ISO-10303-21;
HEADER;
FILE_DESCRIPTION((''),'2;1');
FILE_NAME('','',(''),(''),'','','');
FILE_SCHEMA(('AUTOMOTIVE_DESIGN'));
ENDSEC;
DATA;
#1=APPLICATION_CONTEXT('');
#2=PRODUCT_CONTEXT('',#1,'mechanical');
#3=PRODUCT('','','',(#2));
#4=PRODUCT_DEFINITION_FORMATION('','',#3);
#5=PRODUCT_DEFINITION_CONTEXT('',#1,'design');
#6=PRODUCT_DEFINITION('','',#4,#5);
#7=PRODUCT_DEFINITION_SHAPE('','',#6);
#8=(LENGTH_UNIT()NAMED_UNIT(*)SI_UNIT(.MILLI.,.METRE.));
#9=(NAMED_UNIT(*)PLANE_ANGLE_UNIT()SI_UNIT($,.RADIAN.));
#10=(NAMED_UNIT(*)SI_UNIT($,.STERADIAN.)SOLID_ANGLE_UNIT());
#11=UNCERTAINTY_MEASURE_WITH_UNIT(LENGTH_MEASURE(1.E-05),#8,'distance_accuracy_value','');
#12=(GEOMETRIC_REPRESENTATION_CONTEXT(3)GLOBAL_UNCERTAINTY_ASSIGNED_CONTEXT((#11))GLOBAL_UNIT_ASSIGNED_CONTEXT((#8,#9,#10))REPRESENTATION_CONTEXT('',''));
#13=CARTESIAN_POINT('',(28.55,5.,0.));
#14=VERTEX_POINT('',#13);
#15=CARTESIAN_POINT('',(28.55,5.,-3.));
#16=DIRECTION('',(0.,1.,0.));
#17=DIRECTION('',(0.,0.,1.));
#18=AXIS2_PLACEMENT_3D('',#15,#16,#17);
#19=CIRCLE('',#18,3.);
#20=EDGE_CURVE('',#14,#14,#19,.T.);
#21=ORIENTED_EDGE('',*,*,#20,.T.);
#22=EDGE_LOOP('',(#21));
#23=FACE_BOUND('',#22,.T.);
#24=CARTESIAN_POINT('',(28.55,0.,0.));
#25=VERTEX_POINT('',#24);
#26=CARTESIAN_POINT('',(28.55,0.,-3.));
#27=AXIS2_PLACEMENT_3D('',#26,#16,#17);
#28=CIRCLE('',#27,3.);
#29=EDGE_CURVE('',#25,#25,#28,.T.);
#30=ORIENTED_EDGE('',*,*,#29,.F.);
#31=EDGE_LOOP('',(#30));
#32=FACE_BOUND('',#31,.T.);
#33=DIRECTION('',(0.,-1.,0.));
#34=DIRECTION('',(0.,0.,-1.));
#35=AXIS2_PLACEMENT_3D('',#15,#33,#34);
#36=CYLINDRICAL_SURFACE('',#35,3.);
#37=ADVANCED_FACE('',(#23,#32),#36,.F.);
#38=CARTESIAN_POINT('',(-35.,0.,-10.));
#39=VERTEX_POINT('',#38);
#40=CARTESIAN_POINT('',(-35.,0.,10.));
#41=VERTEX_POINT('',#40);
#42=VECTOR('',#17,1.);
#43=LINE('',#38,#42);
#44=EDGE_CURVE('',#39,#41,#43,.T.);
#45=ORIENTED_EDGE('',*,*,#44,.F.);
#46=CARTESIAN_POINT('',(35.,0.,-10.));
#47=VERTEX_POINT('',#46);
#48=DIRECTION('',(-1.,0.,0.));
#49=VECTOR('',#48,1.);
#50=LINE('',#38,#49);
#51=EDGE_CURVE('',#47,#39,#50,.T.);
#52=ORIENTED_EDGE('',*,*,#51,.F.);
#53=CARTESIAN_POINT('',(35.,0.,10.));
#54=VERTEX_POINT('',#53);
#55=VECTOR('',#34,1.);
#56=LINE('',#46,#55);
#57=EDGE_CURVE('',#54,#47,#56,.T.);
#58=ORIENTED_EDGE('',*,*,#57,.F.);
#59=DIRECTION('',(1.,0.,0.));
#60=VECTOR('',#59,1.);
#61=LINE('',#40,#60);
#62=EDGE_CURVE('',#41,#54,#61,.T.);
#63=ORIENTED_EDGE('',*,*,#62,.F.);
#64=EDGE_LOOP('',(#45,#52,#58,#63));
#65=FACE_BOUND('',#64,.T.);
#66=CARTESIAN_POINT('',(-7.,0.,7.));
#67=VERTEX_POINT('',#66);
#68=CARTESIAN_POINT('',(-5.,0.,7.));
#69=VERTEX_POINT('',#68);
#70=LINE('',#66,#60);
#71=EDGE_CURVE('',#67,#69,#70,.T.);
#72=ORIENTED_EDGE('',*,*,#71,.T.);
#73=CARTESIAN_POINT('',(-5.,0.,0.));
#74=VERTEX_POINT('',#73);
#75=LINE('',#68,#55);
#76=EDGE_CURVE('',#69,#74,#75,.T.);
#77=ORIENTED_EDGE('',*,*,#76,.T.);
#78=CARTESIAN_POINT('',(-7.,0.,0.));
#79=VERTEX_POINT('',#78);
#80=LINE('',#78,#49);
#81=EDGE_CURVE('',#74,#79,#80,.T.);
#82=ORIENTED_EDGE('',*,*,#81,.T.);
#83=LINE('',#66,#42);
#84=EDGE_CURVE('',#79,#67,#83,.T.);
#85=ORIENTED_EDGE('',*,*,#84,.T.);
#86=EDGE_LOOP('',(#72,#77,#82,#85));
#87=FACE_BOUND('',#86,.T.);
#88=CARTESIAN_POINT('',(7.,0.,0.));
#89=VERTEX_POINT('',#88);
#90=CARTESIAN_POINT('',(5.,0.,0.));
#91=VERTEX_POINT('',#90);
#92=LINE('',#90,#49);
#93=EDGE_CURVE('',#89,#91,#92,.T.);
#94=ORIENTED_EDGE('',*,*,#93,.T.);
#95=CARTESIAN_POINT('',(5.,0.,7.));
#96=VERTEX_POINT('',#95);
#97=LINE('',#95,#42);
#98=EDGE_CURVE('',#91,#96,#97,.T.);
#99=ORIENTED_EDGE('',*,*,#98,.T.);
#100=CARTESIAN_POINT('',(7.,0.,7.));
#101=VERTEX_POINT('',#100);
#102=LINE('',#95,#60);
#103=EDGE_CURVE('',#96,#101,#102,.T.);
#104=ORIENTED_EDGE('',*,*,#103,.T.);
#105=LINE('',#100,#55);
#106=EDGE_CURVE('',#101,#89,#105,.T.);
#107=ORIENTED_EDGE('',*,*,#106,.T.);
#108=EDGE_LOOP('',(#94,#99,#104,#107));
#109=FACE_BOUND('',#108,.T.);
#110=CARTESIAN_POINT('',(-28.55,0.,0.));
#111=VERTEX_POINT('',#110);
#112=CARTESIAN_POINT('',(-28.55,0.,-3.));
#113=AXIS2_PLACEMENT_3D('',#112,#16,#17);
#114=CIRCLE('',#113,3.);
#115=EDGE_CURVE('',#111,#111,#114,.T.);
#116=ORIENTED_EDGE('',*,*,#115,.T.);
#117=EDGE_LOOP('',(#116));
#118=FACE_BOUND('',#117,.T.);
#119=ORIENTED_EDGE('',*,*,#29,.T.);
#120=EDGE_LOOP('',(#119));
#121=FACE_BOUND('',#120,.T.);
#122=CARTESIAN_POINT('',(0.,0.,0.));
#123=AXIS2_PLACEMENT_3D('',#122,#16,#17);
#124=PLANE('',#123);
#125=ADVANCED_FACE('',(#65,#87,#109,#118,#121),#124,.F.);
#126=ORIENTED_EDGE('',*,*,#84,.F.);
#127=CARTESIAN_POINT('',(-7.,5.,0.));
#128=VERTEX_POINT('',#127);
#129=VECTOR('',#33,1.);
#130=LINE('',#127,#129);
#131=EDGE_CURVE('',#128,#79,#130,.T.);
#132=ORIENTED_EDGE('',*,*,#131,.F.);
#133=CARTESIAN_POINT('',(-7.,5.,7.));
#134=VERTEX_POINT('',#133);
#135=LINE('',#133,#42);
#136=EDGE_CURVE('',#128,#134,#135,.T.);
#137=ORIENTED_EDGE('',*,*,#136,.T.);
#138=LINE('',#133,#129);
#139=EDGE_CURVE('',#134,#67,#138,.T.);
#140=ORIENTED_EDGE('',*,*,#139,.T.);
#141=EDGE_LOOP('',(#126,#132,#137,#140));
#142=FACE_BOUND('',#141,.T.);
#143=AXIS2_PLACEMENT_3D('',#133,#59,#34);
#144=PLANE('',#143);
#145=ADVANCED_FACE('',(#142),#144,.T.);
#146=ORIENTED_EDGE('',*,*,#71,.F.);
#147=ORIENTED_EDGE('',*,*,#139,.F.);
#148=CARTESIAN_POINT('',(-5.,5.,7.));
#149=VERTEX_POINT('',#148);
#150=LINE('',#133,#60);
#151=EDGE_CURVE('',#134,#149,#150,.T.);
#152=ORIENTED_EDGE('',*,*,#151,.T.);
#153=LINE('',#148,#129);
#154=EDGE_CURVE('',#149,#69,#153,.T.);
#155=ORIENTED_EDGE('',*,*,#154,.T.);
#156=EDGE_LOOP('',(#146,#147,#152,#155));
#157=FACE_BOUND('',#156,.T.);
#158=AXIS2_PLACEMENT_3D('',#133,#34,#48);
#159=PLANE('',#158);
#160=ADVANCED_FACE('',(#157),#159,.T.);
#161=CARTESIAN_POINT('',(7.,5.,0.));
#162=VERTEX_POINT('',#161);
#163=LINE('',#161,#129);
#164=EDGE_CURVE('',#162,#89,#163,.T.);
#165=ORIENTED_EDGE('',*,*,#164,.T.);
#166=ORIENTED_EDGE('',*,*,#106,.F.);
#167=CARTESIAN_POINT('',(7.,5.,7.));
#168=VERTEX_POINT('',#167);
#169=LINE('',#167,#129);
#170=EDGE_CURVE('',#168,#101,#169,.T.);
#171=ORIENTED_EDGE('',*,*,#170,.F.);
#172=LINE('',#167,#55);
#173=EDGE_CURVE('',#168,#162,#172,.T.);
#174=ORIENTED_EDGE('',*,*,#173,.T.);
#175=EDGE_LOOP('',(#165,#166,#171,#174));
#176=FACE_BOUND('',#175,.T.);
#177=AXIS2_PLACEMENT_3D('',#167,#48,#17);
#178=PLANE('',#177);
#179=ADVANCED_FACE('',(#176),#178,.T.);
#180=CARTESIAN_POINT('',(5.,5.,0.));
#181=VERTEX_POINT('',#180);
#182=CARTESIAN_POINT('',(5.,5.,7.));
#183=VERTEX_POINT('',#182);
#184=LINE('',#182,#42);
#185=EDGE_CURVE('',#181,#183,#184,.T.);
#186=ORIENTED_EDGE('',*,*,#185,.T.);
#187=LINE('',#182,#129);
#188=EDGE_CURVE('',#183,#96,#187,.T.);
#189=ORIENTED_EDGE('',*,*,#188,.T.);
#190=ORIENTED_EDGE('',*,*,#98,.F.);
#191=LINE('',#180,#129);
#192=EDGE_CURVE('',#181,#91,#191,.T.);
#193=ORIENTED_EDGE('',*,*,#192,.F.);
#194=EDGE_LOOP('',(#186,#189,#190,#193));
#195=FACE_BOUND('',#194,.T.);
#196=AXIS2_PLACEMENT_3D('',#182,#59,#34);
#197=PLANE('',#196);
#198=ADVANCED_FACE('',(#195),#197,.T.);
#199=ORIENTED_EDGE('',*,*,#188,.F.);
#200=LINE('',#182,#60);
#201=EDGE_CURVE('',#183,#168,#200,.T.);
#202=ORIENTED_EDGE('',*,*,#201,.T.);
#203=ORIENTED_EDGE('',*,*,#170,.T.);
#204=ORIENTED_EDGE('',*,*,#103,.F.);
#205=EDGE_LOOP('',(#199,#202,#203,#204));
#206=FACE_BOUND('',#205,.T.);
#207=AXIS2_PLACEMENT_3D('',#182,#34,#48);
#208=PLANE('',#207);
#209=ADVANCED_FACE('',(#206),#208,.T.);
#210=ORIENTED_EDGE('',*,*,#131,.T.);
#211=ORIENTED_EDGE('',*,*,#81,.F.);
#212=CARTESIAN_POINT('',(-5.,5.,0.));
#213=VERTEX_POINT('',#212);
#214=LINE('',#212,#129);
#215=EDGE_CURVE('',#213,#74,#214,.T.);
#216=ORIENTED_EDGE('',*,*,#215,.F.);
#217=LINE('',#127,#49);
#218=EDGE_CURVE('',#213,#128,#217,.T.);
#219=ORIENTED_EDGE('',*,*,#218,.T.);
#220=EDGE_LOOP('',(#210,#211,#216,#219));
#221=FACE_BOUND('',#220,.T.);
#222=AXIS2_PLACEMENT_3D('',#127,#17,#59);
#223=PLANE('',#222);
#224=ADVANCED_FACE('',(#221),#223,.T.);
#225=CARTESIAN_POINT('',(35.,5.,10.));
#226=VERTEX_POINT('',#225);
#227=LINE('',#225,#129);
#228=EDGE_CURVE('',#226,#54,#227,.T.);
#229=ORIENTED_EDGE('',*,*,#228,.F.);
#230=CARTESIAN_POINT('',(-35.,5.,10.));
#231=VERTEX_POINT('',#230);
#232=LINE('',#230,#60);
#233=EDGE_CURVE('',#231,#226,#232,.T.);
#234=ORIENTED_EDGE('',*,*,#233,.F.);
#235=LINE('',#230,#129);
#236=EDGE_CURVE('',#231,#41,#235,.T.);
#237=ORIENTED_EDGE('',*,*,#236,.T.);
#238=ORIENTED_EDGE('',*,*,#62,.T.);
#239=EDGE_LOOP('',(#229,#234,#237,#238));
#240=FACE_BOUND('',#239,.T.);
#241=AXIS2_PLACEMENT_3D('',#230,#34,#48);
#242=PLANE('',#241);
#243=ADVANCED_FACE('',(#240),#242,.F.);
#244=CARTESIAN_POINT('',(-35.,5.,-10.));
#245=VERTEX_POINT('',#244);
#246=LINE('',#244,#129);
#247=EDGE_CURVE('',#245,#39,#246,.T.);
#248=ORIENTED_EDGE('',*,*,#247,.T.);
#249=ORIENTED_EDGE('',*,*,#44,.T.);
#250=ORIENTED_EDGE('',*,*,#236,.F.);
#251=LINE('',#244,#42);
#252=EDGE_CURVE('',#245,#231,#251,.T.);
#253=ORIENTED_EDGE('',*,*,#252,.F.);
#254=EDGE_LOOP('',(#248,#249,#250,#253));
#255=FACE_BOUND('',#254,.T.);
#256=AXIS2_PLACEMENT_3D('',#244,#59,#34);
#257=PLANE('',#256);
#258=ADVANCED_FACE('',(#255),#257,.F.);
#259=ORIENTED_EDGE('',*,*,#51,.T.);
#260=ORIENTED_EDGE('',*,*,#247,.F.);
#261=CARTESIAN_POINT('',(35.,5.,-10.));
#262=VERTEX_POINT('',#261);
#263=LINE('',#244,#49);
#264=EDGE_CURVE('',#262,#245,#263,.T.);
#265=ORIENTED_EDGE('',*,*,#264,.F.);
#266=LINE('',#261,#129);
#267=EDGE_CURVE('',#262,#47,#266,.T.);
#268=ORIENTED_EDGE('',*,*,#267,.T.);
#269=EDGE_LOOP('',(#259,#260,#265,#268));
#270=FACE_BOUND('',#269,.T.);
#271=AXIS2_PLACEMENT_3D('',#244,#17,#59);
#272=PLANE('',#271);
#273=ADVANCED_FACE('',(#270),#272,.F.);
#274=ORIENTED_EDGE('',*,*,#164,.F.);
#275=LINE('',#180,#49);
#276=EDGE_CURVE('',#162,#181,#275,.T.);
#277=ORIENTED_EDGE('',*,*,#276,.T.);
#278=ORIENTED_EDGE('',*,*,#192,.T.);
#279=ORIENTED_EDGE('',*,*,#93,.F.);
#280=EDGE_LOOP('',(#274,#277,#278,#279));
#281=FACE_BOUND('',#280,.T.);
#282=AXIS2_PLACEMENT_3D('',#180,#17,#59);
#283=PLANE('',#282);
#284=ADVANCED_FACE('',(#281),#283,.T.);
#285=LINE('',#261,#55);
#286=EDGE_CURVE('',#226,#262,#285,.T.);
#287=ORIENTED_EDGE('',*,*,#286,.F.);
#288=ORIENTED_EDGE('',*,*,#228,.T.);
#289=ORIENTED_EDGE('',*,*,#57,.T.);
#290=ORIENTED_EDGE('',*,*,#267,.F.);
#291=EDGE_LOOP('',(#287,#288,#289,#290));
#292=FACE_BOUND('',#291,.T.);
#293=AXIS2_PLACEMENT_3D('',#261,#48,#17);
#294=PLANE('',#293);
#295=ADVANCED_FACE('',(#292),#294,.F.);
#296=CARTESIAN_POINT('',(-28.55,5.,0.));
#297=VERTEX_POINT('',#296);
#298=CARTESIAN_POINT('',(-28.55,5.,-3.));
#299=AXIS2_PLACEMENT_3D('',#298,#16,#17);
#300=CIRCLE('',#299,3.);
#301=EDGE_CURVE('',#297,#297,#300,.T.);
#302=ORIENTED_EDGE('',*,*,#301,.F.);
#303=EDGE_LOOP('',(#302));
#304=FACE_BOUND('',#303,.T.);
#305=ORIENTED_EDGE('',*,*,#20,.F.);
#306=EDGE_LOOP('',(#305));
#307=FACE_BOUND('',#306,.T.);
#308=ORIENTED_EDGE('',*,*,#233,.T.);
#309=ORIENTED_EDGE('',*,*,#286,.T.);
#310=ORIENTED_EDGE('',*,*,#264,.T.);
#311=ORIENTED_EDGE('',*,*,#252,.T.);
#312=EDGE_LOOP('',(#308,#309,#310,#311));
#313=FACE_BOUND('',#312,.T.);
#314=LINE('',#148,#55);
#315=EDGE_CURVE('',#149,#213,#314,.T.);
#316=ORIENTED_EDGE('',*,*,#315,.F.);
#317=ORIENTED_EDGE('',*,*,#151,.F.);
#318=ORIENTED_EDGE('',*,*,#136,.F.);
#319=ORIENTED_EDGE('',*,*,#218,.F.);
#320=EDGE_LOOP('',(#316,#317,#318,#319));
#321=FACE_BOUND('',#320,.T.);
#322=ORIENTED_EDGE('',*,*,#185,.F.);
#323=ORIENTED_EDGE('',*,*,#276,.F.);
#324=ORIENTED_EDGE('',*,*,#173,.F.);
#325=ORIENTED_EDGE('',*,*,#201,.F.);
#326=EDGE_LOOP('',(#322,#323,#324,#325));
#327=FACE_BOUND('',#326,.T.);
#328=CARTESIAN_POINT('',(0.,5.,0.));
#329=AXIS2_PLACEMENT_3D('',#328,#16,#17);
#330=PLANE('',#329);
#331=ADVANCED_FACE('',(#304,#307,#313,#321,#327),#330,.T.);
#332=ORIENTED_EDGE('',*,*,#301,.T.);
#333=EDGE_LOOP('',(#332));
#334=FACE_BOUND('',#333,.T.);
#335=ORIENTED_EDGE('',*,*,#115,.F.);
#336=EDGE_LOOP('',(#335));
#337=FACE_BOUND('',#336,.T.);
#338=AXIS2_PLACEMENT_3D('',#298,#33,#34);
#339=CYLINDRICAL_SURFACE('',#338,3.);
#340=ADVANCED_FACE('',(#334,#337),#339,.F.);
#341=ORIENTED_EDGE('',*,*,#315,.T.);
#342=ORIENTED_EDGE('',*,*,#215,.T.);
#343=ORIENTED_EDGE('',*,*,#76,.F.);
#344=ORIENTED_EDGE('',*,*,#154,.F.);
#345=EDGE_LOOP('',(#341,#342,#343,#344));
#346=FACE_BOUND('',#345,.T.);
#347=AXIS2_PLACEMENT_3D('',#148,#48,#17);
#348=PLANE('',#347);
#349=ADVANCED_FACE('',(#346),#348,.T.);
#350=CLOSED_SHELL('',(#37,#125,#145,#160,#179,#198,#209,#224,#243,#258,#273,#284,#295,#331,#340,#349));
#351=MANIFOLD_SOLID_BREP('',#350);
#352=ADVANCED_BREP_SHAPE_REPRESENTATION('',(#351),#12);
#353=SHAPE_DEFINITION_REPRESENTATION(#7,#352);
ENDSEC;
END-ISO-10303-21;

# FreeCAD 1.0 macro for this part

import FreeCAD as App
import Part
import Sketcher

V = App.Vector


def add_polygon(sketch, points):
    """Adds a closed chain of lines whose ends are joined by coincident constraints."""
    first, n = sketch.GeometryCount, len(points)
    for a, b in zip(points, points[1:] + points[:1]):
        sketch.addGeometry(Part.LineSegment(App.Vector(*a, 0), App.Vector(*b, 0)), False)
    for i in range(n):
        sketch.addConstraint(Sketcher.Constraint("Coincident", first + i, 2, first + (i + 1) % n, 1))

doc = App.newDocument("Part")
body = doc.addObject("PartDesign::Body", "Body")

# Sketch on XZ plane
sketch1 = body.newObject("Sketcher::SketchObject", "Sketch")
sketch1.AttachmentSupport = (doc.getObject("XZ_Plane"), [""])
sketch1.MapMode = "FlatFace"
add_polygon(sketch1, [(-35, -10), (-35, 10), (35, 10), (35, -10)])  # lines 0-3
add_polygon(sketch1, [(-5, 7), (-7, 7), (-7, 0), (-5, 0)])  # lines 4-7
add_polygon(sketch1, [(7, 7), (5, 7), (5, 0), (7, 0)])  # lines 8-11
sketch1.addGeometry(Part.Circle(V(-28.6, -3, 0), V(0, 0, 1), 3), False)  # 12
sketch1.addGeometry(Part.Circle(V(28.6, -3, 0), V(0, 0, 1), 3), False)  # 13
sketch1.addConstraint(Sketcher.Constraint("Vertical", 0))
sketch1.addConstraint(Sketcher.Constraint("Horizontal", 1))
sketch1.addConstraint(Sketcher.Constraint("Vertical", 2))
sketch1.addConstraint(Sketcher.Constraint("Horizontal", 3))
sketch1.addConstraint(Sketcher.Constraint("Horizontal", 4))
sketch1.addConstraint(Sketcher.Constraint("Vertical", 5))
sketch1.addConstraint(Sketcher.Constraint("Horizontal", 6))
sketch1.addConstraint(Sketcher.Constraint("Vertical", 7))
sketch1.addConstraint(Sketcher.Constraint("Horizontal", 8))
sketch1.addConstraint(Sketcher.Constraint("Vertical", 9))
sketch1.addConstraint(Sketcher.Constraint("Horizontal", 10))
sketch1.addConstraint(Sketcher.Constraint("Vertical", 11))
sketch1.addConstraint(Sketcher.Constraint("Equal", 12, 13))
sketch1.addConstraint(Sketcher.Constraint("Symmetric", 0, 2, 2, 2, -1, 1))
sketch1.addConstraint(Sketcher.Constraint("Symmetric", 6, 2, 9, 2, -1, 1))
sketch1.addConstraint(Sketcher.Constraint("Symmetric", 12, 3, 13, 3, -2))
sketch1.addConstraint(Sketcher.Constraint("Symmetric", 5, 2, 10, 2, -2))
sketch1.addConstraint(Sketcher.Constraint("Horizontal", 7, 2, 8, 2))
sketch1.addConstraint(Sketcher.Constraint("Diameter", 12, 6.0))
sketch1.addConstraint(Sketcher.Constraint("DistanceX", 1, 1, 1, 2, 70.0))
sketch1.addConstraint(Sketcher.Constraint("DistanceX", 4, 2, 4, 1, 2.0))
sketch1.addConstraint(Sketcher.Constraint("DistanceY", 0, 1, 0, 2, 20.0))
sketch1.addConstraint(Sketcher.Constraint("DistanceY", 5, 2, 5, 1, 7.0))
sketch1.addConstraint(Sketcher.Constraint("DistanceY", 12, 3, -1, 1, 3.0))
sketch1.addConstraint(Sketcher.Constraint("DistanceX", 4, 2, -1, 1, 7.0))
sketch1.addConstraint(Sketcher.Constraint("DistanceX", 12, 3, 13, 3, 57.1))
pad1 = body.newObject("PartDesign::Pad", "Pad")
pad1.Profile = sketch1
pad1.Length = 5
pad1.Reversed = True

doc.recompute()
